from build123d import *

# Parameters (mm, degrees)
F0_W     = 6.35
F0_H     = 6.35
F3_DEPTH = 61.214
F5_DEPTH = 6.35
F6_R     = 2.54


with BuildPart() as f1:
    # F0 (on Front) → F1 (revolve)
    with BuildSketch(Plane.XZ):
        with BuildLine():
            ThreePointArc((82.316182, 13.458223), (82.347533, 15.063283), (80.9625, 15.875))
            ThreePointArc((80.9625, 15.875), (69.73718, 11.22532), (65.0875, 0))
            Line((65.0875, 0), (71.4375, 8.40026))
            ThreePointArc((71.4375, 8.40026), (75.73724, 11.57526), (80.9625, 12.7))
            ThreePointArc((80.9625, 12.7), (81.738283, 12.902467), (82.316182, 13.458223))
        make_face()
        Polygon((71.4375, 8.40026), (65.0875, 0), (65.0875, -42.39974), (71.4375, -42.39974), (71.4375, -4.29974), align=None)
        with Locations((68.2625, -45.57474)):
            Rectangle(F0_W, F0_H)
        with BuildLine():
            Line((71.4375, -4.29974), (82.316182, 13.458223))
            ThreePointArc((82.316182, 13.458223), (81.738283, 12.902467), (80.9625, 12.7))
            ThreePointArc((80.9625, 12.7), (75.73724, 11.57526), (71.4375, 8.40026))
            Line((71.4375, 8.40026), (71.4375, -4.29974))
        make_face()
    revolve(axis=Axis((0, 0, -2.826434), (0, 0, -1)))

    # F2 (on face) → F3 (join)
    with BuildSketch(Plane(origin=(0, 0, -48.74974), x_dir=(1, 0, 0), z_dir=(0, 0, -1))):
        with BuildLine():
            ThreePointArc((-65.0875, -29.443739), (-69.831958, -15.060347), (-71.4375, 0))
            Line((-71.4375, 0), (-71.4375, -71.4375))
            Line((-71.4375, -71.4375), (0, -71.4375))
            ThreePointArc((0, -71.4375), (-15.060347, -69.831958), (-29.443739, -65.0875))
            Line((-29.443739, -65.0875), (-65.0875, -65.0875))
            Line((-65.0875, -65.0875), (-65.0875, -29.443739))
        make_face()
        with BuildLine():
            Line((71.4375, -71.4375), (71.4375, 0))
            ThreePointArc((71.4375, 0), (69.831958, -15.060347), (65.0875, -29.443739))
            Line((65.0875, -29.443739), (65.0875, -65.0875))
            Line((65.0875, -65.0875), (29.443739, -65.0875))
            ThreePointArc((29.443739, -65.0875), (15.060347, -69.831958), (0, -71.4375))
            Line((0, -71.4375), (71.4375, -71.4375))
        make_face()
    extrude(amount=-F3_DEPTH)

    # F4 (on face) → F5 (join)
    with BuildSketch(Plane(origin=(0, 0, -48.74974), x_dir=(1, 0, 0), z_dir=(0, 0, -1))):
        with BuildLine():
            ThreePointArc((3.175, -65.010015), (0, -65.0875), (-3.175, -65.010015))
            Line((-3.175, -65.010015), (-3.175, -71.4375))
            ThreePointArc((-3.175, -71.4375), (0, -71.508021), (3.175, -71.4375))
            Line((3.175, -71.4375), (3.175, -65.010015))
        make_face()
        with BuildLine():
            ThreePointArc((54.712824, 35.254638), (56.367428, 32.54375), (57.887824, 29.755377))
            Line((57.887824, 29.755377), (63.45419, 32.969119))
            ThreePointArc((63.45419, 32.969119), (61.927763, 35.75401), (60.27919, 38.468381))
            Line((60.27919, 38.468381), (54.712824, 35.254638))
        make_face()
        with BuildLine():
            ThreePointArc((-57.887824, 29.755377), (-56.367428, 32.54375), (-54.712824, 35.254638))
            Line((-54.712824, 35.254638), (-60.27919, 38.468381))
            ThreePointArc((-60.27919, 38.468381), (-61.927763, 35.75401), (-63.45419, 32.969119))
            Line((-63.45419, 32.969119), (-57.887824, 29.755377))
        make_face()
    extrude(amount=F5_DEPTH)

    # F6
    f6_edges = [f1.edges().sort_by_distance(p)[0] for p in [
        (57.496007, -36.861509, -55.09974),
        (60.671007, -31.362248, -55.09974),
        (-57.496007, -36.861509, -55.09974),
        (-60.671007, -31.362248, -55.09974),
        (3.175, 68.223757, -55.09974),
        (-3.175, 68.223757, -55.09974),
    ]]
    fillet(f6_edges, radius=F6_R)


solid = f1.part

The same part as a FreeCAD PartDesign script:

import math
import FreeCAD as App
import Part
import Sketcher
Q = App.Units.Quantity


def edges_at(feature, points):
    """Names of the edges that pass closest to the given points."""
    edges = feature.Shape.Edges
    near = lambda p: min(range(len(edges)), key=lambda i: edges[i].distToShape(Part.Vertex(*p))[0])
    return sorted({f"Edge{near(p) + 1}" for p in points})

doc = App.newDocument("Part")
params = doc.addObject("Spreadsheet::Sheet", "Params")
for row, (alias, value) in enumerate([
    ("sketch1_radius", "0.0625 in"),
    ("sketch1_radius2", "0.625 in"),
    ("sketch1_width", "0.25 in"),
    ("sketch1_height", "1.75 in"),
    ("revolution_angle", "360 deg"),
    ("sketch2_radius", "2.8125001 in"),
    ("pad1_length", "2.41 in"),
    ("pad2_length", "0.25 in"),
    ("fillet_radius", "0.1 in"),
], start=1):
    params.set(f"A{row}", alias)
    params.set(f"B{row}", "=" + value)
    params.setAlias(f"B{row}", alias)

body = doc.addObject("PartDesign::Body", "Body")

sketch1 = body.newObject("Sketcher::SketchObject", "Sketch")
sketch1.AttachmentSupport = (doc.getObject("XZ_Plane"), [""])
sketch1.MapMode = "FlatFace"
sketch1.addGeometry([
    Part.ArcOfCircle(Part.Circle(App.Vector(81, 14.3, 0), App.Vector(0, 0, 1), 1.6), math.radians(-31), math.radians(90)),
    Part.ArcOfCircle(Part.Circle(App.Vector(81, 0, 0), App.Vector(0, 0, 1), 15.9), math.radians(90), math.radians(180)),
    Part.LineSegment(App.Vector(65.1, 0, 0), App.Vector(65.1, -48.7, 0)),
    Part.LineSegment(App.Vector(65.1, -48.7, 0), App.Vector(71.4, -48.7, 0)),
    Part.LineSegment(App.Vector(71.4, -48.7, 0), App.Vector(71.4, -4.3, 0)),
    Part.LineSegment(App.Vector(71.4, -4.3, 0), App.Vector(82.3, 13.5, 0)),
], False)
sketch1.addConstraint([
    Sketcher.Constraint("Tangent", 0, 2, 1, 1),
    Sketcher.Constraint("Tangent", 1, 2, 2, 1),
    Sketcher.Constraint("Coincident", 2, 2, 3, 1),
    Sketcher.Constraint("Coincident", 3, 2, 4, 1),
    Sketcher.Constraint("Coincident", 4, 2, 5, 1),
    Sketcher.Constraint("Tangent", 5, 2, 0, 1),
    Sketcher.Constraint("Vertical", 2),
    Sketcher.Constraint("Horizontal", 3),
    Sketcher.Constraint("Vertical", 4),
    Sketcher.Constraint("PointOnObject", 1, 3, -1),
    Sketcher.Constraint("Vertical", 0, 3, 1, 3),
    Sketcher.Constraint("Radius", 0, Q("0.0625 in")),
    Sketcher.Constraint("Radius", 1, Q("0.625 in")),
    Sketcher.Constraint("DistanceX", 3, 1, 3, 2, Q("0.25 in")),
    Sketcher.Constraint("DistanceY", 4, 1, 4, 2, Q("1.75 in")),
    Sketcher.Constraint("DistanceX", -1, 1, 0, 3, Q("3.1875 in")),
    Sketcher.Constraint("DistanceY", 2, 2, 2, 1, 48.74974),
])
sketch1.setExpression("Constraints[11]", "Params.sketch1_radius")
sketch1.setExpression("Constraints[12]", "Params.sketch1_radius2")
sketch1.setExpression("Constraints[13]", "Params.sketch1_width")
sketch1.setExpression("Constraints[14]", "Params.sketch1_height")
revolution = body.newObject("PartDesign::Revolution", "Revolution")
revolution.Profile = sketch1
revolution.ReferenceAxis = (sketch1, ["V_Axis"])
revolution.setExpression("Angle", "Params.revolution_angle")

sketch2 = body.newObject("Sketcher::SketchObject", "Sketch001")
sketch2.AttachmentSupport = (doc.getObject("XY_Plane"), [""])
sketch2.MapMode = "FlatFace"
sketch2.AttachmentOffset = App.Placement(App.Vector(0, 0, -48.74974), App.Rotation())
sketch2.addGeometry([
    Part.ArcOfCircle(Part.Circle(App.Vector(0, 0, 0), App.Vector(0, 0, 1), 71), math.radians(156), math.radians(180)),
    Part.LineSegment(App.Vector(-71, 0, 0), App.Vector(-71, 71, 0)),
    Part.LineSegment(App.Vector(-71, 71, 0), App.Vector(0, 71, 0)),
    Part.ArcOfCircle(Part.Circle(App.Vector(0, 0, 0), App.Vector(0, 0, 1), 71), math.radians(90), math.radians(114)),
    Part.LineSegment(App.Vector(-29, 65, 0), App.Vector(-65, 65, 0)),
    Part.LineSegment(App.Vector(-65, 65, 0), App.Vector(-65, 29, 0)),
    Part.LineSegment(App.Vector(71, 71, 0), App.Vector(71, 0, 0)),
    Part.ArcOfCircle(Part.Circle(App.Vector(0, 0, 0), App.Vector(0, 0, 1), 71), math.radians(0), math.radians(24)),
    Part.LineSegment(App.Vector(65, 29, 0), App.Vector(65, 65, 0)),
    Part.LineSegment(App.Vector(65, 65, 0), App.Vector(29, 65, 0)),
    Part.ArcOfCircle(Part.Circle(App.Vector(0, 0, 0), App.Vector(0, 0, 1), 71), math.radians(66), math.radians(90)),
    Part.LineSegment(App.Vector(0, 71, 0), App.Vector(71, 71, 0)),
], False)
sketch2.addConstraint([
    Sketcher.Constraint("Tangent", 0, 2, 1, 1),
    Sketcher.Constraint("Coincident", 1, 2, 2, 1),
    Sketcher.Constraint("Tangent", 2, 2, 3, 1),
    Sketcher.Constraint("Coincident", 3, 2, 4, 1),
    Sketcher.Constraint("Coincident", 4, 2, 5, 1),
    Sketcher.Constraint("Coincident", 5, 2, 0, 1),
    Sketcher.Constraint("Tangent", 6, 2, 7, 1),
    Sketcher.Constraint("Coincident", 7, 2, 8, 1),
    Sketcher.Constraint("Coincident", 8, 2, 9, 1),
    Sketcher.Constraint("Coincident", 9, 2, 10, 1),
    Sketcher.Constraint("Tangent", 10, 2, 11, 1),
    Sketcher.Constraint("Coincident", 11, 2, 6, 1),
    Sketcher.Constraint("Vertical", 1),
    Sketcher.Constraint("Horizontal", 2),
    Sketcher.Constraint("Horizontal", 4),
    Sketcher.Constraint("Vertical", 5),
    Sketcher.Constraint("Vertical", 6),
    Sketcher.Constraint("Vertical", 8),
    Sketcher.Constraint("Horizontal", 9),
    Sketcher.Constraint("Horizontal", 11),
    Sketcher.Constraint("Coincident", 0, 3, -1, 1),
    Sketcher.Constraint("Coincident", 3, 3, -1, 1),
    Sketcher.Constraint("Coincident", 7, 3, -1, 1),
    Sketcher.Constraint("Coincident", 10, 3, -1, 1),
    Sketcher.Constraint("Equal", 0, 3),
    Sketcher.Constraint("Equal", 3, 7),
    Sketcher.Constraint("Equal", 7, 10),
    Sketcher.Constraint("Symmetric", 4, 2, 8, 2, -2),
    Sketcher.Constraint("Equal", 9, 5),
    Sketcher.Constraint("Radius", 0, Q("2.8125001 in")),
    Sketcher.Constraint("DistanceY", 3, 2, 2, 2, Q("0.25 in")),
])
sketch2.setExpression("Constraints[29]", "Params.sketch2_radius")
pad1 = body.newObject("PartDesign::Pad", "Pad")
pad1.Profile = sketch2
pad1.setExpression("Length", "Params.pad1_length")

sketch3 = body.newObject("Sketcher::SketchObject", "Sketch002")
sketch3.AttachmentSupport = (doc.getObject("XY_Plane"), [""])
sketch3.MapMode = "FlatFace"
sketch3.AttachmentOffset = App.Placement(App.Vector(0, 0, -48.74974), App.Rotation())
sketch3.addGeometry([
    Part.ArcOfCircle(Part.Circle(App.Vector(0, -0.000123, 0), App.Vector(0, 0, 1), 65.087623), math.radians(87.20398), math.radians(92.79602)),
    Part.LineSegment(App.Vector(-3.175, 65.010015, 0), App.Vector(-3.175, 71.4375, 0)),
    Part.ArcOfCircle(Part.Circle(App.Vector(0, 0.000256, 0), App.Vector(0, 0, 1), 71.507765), math.radians(87.455187), math.radians(92.544813)),
    Part.LineSegment(App.Vector(3.175, 71.4375, 0), App.Vector(3.175, 65.010015, 0)),
    Part.ArcOfCircle(Part.Circle(App.Vector(-0.000088, 0.000052, 0), App.Vector(0, 0, 1), 65.087602), math.radians(-32.796023), math.radians(-27.20398)),
    Part.LineSegment(App.Vector(57.887824, -29.755377, 0), App.Vector(63.45419, -32.969119, 0)),
    Part.ArcOfCircle(Part.Circle(App.Vector(0.000006, -0.000008, 0), App.Vector(0, 0, 1), 71.508012), math.radians(-32.544802), math.radians(-27.455192)),
    Part.LineSegment(App.Vector(60.27919, -38.468381, 0), App.Vector(54.712824, -35.254638, 0)),
    Part.ArcOfCircle(Part.Circle(App.Vector(0.000088, 0.000052, 0), App.Vector(0, 0, 1), 65.087602), math.radians(-152.79602), math.radians(-147.203977)),
    Part.LineSegment(App.Vector(-54.712824, -35.254638, 0), App.Vector(-60.27919, -38.468381, 0)),
    Part.ArcOfCircle(Part.Circle(App.Vector(-0.000006, -0.000008, 0), App.Vector(0, 0, 1), 71.508012), math.radians(-152.544808), math.radians(-147.455198)),
    Part.LineSegment(App.Vector(-63.45419, -32.969119, 0), App.Vector(-57.887824, -29.755377, 0)),
], False)
sketch3.addConstraint([
    Sketcher.Constraint("Coincident", 0, 2, 1, 1),
    Sketcher.Constraint("Coincident", 1, 2, 2, 2),
    Sketcher.Constraint("Coincident", 2, 1, 3, 1),
    Sketcher.Constraint("Coincident", 3, 2, 0, 1),
    Sketcher.Constraint("Coincident", 4, 2, 5, 1),
    Sketcher.Constraint("Coincident", 5, 2, 6, 2),
    Sketcher.Constraint("Coincident", 6, 1, 7, 1),
    Sketcher.Constraint("Coincident", 7, 2, 4, 1),
    Sketcher.Constraint("Coincident", 8, 2, 9, 1),
    Sketcher.Constraint("Coincident", 9, 2, 10, 2),
    Sketcher.Constraint("Coincident", 10, 1, 11, 1),
    Sketcher.Constraint("Coincident", 11, 2, 8, 1),
    Sketcher.Constraint("Vertical", 1),
    Sketcher.Constraint("Vertical", 3),
    Sketcher.Constraint("Coincident", 6, 3, -1, 1),
    Sketcher.Constraint("Coincident", 10, 3, -1, 1),
    Sketcher.Constraint("PointOnObject", 0, 3, -2),
    Sketcher.Constraint("PointOnObject", 2, 3, -2),
    Sketcher.Constraint("Radius", 4, 65.087602),
    Sketcher.Constraint("Radius", 8, 65.087602),
    Sketcher.Constraint("DistanceX", 1, 2, 2, 1, Q("0.25 in")),
    Sketcher.Constraint("DistanceX", 0, 2, -1, 1, Q("0.125 in")),
    Sketcher.Constraint("DistanceY", -1, 1, 1, 2, Q("2.8125 in")),
    Sketcher.Constraint("DistanceX", 6, 1, 5, 2, Q("0.125 in")),
    Sketcher.Constraint("DistanceX", 7, 2, 4, 2, Q("0.125 in")),
    Sketcher.Constraint("DistanceX", 10, 1, 9, 2, Q("0.125 in")),
    Sketcher.Constraint("DistanceX", 11, 2, 8, 2, Q("0.125 in")),
    Sketcher.Constraint("Radius", 0, 65.087623),
    Sketcher.Constraint("Radius", 2, 71.507765),
    Sketcher.Constraint("Radius", 6, 71.508012),
    Sketcher.Constraint("Radius", 10, 71.508012),
    Sketcher.Constraint("DistanceY", 1, 1, 1, 2, 6.427485),
    Sketcher.Constraint("DistanceX", -1, 1, 5, 2, 63.45419),
    Sketcher.Constraint("DistanceY", 8, 2, -1, 1, 35.254638),
    Sketcher.Constraint("DistanceX", 9, 2, -1, 1, 60.27919),
    Sketcher.Constraint("DistanceY", 4, 2, 8, 3, 29.755429),
    Sketcher.Constraint("DistanceX", 6, 3, 4, 2, 57.887818),
    Sketcher.Constraint("DistanceY", 4, 2, 6, 3, 29.755369),
    Sketcher.Constraint("DistanceX", 4, 3, 4, 2, 57.887912),
    Sketcher.Constraint("DistanceX", 8, 2, 10, 3, 54.712818),
])
pad2 = body.newObject("PartDesign::Pad", "Pad001")
pad2.Profile = sketch3
pad2.setExpression("Length", "Params.pad2_length")
pad2.Reversed = True
doc.recompute()

fillet = body.newObject("PartDesign::Fillet", "Fillet")
fillet.Base = (pad2, edges_at(pad2, [
    (57.496, -36.862, -55.1),
    (60.671, -31.362, -55.1),
    (-57.496, -36.862, -55.1),
    (-60.671, -31.362, -55.1),
    (3.175, 68.224, -55.1),
    (-3.175, 68.224, -55.1),
]))
fillet.setExpression("Radius", "Params.fillet_radius")

doc.recompute()
